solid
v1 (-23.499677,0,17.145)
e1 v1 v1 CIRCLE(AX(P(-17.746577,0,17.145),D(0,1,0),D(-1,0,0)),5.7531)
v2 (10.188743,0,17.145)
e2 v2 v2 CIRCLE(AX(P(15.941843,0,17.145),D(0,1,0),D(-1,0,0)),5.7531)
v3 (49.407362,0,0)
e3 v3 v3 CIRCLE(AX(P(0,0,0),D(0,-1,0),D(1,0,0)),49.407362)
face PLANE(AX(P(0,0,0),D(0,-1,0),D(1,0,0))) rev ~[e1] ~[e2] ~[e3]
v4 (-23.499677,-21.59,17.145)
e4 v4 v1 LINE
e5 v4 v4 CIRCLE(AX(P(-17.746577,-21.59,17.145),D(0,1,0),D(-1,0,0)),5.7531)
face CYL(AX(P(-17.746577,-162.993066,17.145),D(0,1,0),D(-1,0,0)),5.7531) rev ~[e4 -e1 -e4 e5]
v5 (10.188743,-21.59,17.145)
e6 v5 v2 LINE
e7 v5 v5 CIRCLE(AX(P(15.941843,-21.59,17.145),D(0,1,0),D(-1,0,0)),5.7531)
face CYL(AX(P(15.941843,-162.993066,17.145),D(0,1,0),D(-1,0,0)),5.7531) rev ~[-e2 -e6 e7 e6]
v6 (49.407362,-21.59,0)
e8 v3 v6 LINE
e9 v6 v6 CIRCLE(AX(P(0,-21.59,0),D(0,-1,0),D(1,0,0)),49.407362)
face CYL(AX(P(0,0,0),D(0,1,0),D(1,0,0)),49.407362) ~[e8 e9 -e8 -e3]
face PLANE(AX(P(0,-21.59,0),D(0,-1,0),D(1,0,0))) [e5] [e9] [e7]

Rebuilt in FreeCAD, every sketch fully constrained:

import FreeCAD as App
import Part
import Sketcher
from FreeCAD import Vector
Q = App.Units.Quantity

doc = App.newDocument("Part")
body = doc.addObject("PartDesign::Body", "Body")

sketch1 = body.newObject("Sketcher::SketchObject", "Sketch")
sketch1.AttachmentSupport = (doc.getObject("XZ_Plane"), [""])
sketch1.MapMode = "FlatFace"
sketch1.addGeometry(Part.Circle(Vector(0, 0, 0), Vector(0, 0, 1), 49), False)
sketch1.addConstraint([
    Sketcher.Constraint("Coincident", 0, 3, -1, 1),
    Sketcher.Constraint("Diameter", 0, 98.814723),
])
pad1 = body.newObject("PartDesign::Pad", "Pad")
pad1.Profile = sketch1
pad1.Length = Q("0.85 in")

sketch2 = body.newObject("Sketcher::SketchObject", "Sketch001")
sketch2.AttachmentSupport = (doc.getObject("XZ_Plane"), [""])
sketch2.MapMode = "FlatFace"
sketch2.AttachmentOffset = App.Placement(Vector(0, 0, 0.85 * 25.4), App.Rotation())
sketch2.addGeometry(Part.Circle(Vector(-18, 17, 0), Vector(0, 0, 1), 6), False)
sketch2.addConstraint([
    Sketcher.Constraint("Diameter", 0, Q("0.453 in")),
    Sketcher.Constraint("DistanceY", -1, 1, 0, 3, Q("0.675 in")),
    Sketcher.Constraint("DistanceX", 0, 3, -1, 1, 17.746577),
])
doc.recompute()
hole = body.newObject("PartDesign::Hole", "Hole")
hole.Profile = sketch2
hole.ThreadType = "None"
hole.Diameter = Q("0.453 in")
hole.DepthType = "ThroughAll"

sketch3 = body.newObject("Sketcher::SketchObject", "Sketch002")
sketch3.AttachmentSupport = (doc.getObject("XZ_Plane"), [""])
sketch3.MapMode = "FlatFace"
sketch3.AttachmentOffset = App.Placement(Vector(0, 0, 0.85 * 25.4), App.Rotation())
sketch3.addGeometry(Part.Circle(Vector(16, 17, 0), Vector(0, 0, 1), 6), False)
sketch3.addConstraint([
    Sketcher.Constraint("Diameter", 0, Q("0.453 in")),
    Sketcher.Constraint("DistanceY", -1, 1, 0, 3, Q("0.675 in")),
    Sketcher.Constraint("DistanceX", -1, 1, 0, 3, 15.941843),
])
doc.recompute()
hole2 = body.newObject("PartDesign::Hole", "Hole001")
hole2.Profile = sketch3
hole2.ThreadType = "None"
hole2.Diameter = Q("0.453 in")
hole2.DepthType = "ThroughAll"

doc.recompute()
